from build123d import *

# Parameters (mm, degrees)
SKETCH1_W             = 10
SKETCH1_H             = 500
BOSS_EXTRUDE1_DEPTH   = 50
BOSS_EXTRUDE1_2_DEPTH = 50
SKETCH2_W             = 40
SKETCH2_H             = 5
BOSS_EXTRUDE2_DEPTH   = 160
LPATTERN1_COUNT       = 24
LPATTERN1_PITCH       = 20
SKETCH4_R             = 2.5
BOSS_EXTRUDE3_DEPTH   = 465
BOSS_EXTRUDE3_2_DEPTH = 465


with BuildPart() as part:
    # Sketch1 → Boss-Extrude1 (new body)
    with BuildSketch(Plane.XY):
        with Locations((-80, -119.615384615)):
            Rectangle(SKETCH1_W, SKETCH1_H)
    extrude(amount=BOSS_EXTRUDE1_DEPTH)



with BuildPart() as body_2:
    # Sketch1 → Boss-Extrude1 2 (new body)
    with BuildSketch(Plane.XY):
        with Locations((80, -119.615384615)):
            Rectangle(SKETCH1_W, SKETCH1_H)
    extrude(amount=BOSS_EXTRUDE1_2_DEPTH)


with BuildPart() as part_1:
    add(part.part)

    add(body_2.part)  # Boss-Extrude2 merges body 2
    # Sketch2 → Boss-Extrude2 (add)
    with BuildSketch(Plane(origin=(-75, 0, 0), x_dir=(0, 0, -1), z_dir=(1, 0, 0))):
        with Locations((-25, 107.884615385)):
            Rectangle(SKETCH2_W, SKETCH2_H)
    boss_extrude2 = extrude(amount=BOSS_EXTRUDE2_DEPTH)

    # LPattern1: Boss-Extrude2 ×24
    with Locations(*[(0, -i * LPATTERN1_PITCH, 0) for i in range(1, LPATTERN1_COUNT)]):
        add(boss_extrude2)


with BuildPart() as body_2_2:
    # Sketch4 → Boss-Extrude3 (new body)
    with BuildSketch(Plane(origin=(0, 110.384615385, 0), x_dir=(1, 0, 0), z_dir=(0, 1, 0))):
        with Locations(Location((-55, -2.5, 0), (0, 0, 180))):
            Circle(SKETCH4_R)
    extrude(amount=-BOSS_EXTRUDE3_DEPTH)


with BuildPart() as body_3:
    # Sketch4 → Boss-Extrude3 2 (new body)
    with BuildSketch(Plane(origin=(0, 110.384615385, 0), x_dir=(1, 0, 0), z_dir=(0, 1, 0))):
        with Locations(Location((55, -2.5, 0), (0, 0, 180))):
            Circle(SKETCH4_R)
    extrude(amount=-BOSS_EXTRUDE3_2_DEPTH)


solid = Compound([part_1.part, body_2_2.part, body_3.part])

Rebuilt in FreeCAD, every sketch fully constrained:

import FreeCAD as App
import Part
import Sketcher

V = App.Vector


def add_polygon(sketch, points):
    """Adds a closed chain of lines whose ends are joined by coincident constraints."""
    first, n = sketch.GeometryCount, len(points)
    for a, b in zip(points, points[1:] + points[:1]):
        sketch.addGeometry(Part.LineSegment(App.Vector(*a, 0), App.Vector(*b, 0)), False)
    for i in range(n):
        sketch.addConstraint(Sketcher.Constraint("Coincident", first + i, 2, first + (i + 1) % n, 1))

doc = App.newDocument("Part")
body = doc.addObject("PartDesign::Body", "Body")

sketch1 = doc.addObject("Sketcher::SketchObject", "Sketch")
body.addObject(sketch1)
sketch1.AttachmentSupport = (doc.XY_Plane, [""])
sketch1.MapMode = "FlatFace"
add_polygon(sketch1, [(-85, 130.384615), (-85, -369.615385), (-75, -369.615385), (-75, 130.384615)])
sketch1.addConstraint([
    Sketcher.Constraint("Vertical", 0),
    Sketcher.Constraint("Horizontal", 1),
    Sketcher.Constraint("Vertical", 2),
    Sketcher.Constraint("Horizontal", 3),
    Sketcher.Constraint("DistanceX", 1, 1, 1, 2, 10.0),
    Sketcher.Constraint("DistanceY", 0, 2, 0, 1, 500.0),
    Sketcher.Constraint("DistanceX", 0, 2, -1, 1, 85.0),
    Sketcher.Constraint("DistanceY", 0, 2, -1, 1, 369.615385),
])
pad1 = doc.addObject("PartDesign::Pad", "Pad")
body.addObject(pad1)
pad1.Profile = sketch1
pad1.Length = 50
body2 = doc.addObject("PartDesign::Body", "Body001")

sketch2 = doc.addObject("Sketcher::SketchObject", "Sketch001")
body2.addObject(sketch2)
sketch2.AttachmentSupport = (doc.getObject("XY_Plane001"), [""])
sketch2.MapMode = "FlatFace"
add_polygon(sketch2, [(75, 130.384615), (75, -369.615385), (85, -369.615385), (85, 130.384615)])
sketch2.addConstraint([
    Sketcher.Constraint("Vertical", 0),
    Sketcher.Constraint("Horizontal", 1),
    Sketcher.Constraint("Vertical", 2),
    Sketcher.Constraint("Horizontal", 3),
    Sketcher.Constraint("DistanceX", 1, 1, 1, 2, 10.0),
    Sketcher.Constraint("DistanceY", 0, 2, 0, 1, 500.0),
    Sketcher.Constraint("DistanceX", -1, 1, 0, 2, 75.0),
    Sketcher.Constraint("DistanceY", 0, 2, -1, 1, 369.615385),
])
pad2 = doc.addObject("PartDesign::Pad", "Pad001")
body2.addObject(pad2)
pad2.Profile = sketch2
pad2.Length = 50
body.AllowCompound = True
doc.recompute()

boolean = doc.addObject("PartDesign::Boolean", "Boolean")
body.addObject(boolean)
boolean.Type = "Fuse"
boolean.addObjects([body2])

sketch3 = doc.addObject("Sketcher::SketchObject", "Sketch002")
body.addObject(sketch3)
sketch3.AttachmentSupport = (doc.YZ_Plane, [""])
sketch3.MapMode = "FlatFace"
sketch3.AttachmentOffset = App.Placement(V(0, 0, -75), App.Rotation())
add_polygon(sketch3, [(110.384615, 45), (105.384615, 45), (105.384615, 5), (110.384615, 5)])
sketch3.addConstraint([
    Sketcher.Constraint("Horizontal", 0),
    Sketcher.Constraint("Vertical", 1),
    Sketcher.Constraint("Horizontal", 2),
    Sketcher.Constraint("Vertical", 3),
    Sketcher.Constraint("DistanceX", 0, 2, 0, 1, 5.0),
    Sketcher.Constraint("DistanceY", 1, 2, 1, 1, 40.0),
    Sketcher.Constraint("DistanceY", -1, 1, 0, 2, 45.0),
    Sketcher.Constraint("DistanceX", -1, 1, 0, 2, 105.384615),
])
pad3 = doc.addObject("PartDesign::Pad", "Pad002")
body.addObject(pad3)
pad3.Profile = sketch3
pad3.Length = 160
doc.recompute()

linearpattern = doc.addObject("PartDesign::LinearPattern", "LinearPattern")
body.addObject(linearpattern)
linearpattern.Originals = [pad3]
linearpattern.Direction = (doc.Y_Axis, [""])
linearpattern.Mode = "offset"
linearpattern.Offset = 20
linearpattern.Occurrences = 24
linearpattern.Reversed = True
body.Tip = linearpattern
body3 = doc.addObject("PartDesign::Body", "Body002")

sketch4 = doc.addObject("Sketcher::SketchObject", "Sketch003")
body3.addObject(sketch4)
sketch4.AttachmentSupport = (doc.getObject("XZ_Plane002"), [""])
sketch4.MapMode = "FlatFace"
sketch4.AttachmentOffset = App.Placement(V(0, 0, -110.384615), App.Rotation())
sketch4.addGeometry(Part.Circle(V(-55, 2.5, 0), V(0, 0, 1), 2.5), False)
sketch4.addConstraint([
    Sketcher.Constraint("Diameter", 0, 5.0),
    Sketcher.Constraint("DistanceX", 0, 3, -1, 1, 55.0),
    Sketcher.Constraint("DistanceY", -1, 1, 0, 3, 2.5),
])
pad4 = doc.addObject("PartDesign::Pad", "Pad003")
body3.addObject(pad4)
pad4.Profile = sketch4
pad4.Length = 465
body4 = doc.addObject("PartDesign::Body", "Body003")

sketch5 = doc.addObject("Sketcher::SketchObject", "Sketch004")
body4.addObject(sketch5)
sketch5.AttachmentSupport = (doc.getObject("XZ_Plane003"), [""])
sketch5.MapMode = "FlatFace"
sketch5.AttachmentOffset = App.Placement(V(0, 0, -110.384615), App.Rotation())
sketch5.addGeometry(Part.Circle(V(55, 2.5, 0), V(0, 0, 1), 2.5), False)
sketch5.addConstraint([
    Sketcher.Constraint("Diameter", 0, 5.0),
    Sketcher.Constraint("DistanceX", -1, 1, 0, 3, 55.0),
    Sketcher.Constraint("DistanceY", -1, 1, 0, 3, 2.5),
])
pad5 = doc.addObject("PartDesign::Pad", "Pad004")
body4.addObject(pad5)
pad5.Profile = sketch5
pad5.Length = 465

doc.recompute()
